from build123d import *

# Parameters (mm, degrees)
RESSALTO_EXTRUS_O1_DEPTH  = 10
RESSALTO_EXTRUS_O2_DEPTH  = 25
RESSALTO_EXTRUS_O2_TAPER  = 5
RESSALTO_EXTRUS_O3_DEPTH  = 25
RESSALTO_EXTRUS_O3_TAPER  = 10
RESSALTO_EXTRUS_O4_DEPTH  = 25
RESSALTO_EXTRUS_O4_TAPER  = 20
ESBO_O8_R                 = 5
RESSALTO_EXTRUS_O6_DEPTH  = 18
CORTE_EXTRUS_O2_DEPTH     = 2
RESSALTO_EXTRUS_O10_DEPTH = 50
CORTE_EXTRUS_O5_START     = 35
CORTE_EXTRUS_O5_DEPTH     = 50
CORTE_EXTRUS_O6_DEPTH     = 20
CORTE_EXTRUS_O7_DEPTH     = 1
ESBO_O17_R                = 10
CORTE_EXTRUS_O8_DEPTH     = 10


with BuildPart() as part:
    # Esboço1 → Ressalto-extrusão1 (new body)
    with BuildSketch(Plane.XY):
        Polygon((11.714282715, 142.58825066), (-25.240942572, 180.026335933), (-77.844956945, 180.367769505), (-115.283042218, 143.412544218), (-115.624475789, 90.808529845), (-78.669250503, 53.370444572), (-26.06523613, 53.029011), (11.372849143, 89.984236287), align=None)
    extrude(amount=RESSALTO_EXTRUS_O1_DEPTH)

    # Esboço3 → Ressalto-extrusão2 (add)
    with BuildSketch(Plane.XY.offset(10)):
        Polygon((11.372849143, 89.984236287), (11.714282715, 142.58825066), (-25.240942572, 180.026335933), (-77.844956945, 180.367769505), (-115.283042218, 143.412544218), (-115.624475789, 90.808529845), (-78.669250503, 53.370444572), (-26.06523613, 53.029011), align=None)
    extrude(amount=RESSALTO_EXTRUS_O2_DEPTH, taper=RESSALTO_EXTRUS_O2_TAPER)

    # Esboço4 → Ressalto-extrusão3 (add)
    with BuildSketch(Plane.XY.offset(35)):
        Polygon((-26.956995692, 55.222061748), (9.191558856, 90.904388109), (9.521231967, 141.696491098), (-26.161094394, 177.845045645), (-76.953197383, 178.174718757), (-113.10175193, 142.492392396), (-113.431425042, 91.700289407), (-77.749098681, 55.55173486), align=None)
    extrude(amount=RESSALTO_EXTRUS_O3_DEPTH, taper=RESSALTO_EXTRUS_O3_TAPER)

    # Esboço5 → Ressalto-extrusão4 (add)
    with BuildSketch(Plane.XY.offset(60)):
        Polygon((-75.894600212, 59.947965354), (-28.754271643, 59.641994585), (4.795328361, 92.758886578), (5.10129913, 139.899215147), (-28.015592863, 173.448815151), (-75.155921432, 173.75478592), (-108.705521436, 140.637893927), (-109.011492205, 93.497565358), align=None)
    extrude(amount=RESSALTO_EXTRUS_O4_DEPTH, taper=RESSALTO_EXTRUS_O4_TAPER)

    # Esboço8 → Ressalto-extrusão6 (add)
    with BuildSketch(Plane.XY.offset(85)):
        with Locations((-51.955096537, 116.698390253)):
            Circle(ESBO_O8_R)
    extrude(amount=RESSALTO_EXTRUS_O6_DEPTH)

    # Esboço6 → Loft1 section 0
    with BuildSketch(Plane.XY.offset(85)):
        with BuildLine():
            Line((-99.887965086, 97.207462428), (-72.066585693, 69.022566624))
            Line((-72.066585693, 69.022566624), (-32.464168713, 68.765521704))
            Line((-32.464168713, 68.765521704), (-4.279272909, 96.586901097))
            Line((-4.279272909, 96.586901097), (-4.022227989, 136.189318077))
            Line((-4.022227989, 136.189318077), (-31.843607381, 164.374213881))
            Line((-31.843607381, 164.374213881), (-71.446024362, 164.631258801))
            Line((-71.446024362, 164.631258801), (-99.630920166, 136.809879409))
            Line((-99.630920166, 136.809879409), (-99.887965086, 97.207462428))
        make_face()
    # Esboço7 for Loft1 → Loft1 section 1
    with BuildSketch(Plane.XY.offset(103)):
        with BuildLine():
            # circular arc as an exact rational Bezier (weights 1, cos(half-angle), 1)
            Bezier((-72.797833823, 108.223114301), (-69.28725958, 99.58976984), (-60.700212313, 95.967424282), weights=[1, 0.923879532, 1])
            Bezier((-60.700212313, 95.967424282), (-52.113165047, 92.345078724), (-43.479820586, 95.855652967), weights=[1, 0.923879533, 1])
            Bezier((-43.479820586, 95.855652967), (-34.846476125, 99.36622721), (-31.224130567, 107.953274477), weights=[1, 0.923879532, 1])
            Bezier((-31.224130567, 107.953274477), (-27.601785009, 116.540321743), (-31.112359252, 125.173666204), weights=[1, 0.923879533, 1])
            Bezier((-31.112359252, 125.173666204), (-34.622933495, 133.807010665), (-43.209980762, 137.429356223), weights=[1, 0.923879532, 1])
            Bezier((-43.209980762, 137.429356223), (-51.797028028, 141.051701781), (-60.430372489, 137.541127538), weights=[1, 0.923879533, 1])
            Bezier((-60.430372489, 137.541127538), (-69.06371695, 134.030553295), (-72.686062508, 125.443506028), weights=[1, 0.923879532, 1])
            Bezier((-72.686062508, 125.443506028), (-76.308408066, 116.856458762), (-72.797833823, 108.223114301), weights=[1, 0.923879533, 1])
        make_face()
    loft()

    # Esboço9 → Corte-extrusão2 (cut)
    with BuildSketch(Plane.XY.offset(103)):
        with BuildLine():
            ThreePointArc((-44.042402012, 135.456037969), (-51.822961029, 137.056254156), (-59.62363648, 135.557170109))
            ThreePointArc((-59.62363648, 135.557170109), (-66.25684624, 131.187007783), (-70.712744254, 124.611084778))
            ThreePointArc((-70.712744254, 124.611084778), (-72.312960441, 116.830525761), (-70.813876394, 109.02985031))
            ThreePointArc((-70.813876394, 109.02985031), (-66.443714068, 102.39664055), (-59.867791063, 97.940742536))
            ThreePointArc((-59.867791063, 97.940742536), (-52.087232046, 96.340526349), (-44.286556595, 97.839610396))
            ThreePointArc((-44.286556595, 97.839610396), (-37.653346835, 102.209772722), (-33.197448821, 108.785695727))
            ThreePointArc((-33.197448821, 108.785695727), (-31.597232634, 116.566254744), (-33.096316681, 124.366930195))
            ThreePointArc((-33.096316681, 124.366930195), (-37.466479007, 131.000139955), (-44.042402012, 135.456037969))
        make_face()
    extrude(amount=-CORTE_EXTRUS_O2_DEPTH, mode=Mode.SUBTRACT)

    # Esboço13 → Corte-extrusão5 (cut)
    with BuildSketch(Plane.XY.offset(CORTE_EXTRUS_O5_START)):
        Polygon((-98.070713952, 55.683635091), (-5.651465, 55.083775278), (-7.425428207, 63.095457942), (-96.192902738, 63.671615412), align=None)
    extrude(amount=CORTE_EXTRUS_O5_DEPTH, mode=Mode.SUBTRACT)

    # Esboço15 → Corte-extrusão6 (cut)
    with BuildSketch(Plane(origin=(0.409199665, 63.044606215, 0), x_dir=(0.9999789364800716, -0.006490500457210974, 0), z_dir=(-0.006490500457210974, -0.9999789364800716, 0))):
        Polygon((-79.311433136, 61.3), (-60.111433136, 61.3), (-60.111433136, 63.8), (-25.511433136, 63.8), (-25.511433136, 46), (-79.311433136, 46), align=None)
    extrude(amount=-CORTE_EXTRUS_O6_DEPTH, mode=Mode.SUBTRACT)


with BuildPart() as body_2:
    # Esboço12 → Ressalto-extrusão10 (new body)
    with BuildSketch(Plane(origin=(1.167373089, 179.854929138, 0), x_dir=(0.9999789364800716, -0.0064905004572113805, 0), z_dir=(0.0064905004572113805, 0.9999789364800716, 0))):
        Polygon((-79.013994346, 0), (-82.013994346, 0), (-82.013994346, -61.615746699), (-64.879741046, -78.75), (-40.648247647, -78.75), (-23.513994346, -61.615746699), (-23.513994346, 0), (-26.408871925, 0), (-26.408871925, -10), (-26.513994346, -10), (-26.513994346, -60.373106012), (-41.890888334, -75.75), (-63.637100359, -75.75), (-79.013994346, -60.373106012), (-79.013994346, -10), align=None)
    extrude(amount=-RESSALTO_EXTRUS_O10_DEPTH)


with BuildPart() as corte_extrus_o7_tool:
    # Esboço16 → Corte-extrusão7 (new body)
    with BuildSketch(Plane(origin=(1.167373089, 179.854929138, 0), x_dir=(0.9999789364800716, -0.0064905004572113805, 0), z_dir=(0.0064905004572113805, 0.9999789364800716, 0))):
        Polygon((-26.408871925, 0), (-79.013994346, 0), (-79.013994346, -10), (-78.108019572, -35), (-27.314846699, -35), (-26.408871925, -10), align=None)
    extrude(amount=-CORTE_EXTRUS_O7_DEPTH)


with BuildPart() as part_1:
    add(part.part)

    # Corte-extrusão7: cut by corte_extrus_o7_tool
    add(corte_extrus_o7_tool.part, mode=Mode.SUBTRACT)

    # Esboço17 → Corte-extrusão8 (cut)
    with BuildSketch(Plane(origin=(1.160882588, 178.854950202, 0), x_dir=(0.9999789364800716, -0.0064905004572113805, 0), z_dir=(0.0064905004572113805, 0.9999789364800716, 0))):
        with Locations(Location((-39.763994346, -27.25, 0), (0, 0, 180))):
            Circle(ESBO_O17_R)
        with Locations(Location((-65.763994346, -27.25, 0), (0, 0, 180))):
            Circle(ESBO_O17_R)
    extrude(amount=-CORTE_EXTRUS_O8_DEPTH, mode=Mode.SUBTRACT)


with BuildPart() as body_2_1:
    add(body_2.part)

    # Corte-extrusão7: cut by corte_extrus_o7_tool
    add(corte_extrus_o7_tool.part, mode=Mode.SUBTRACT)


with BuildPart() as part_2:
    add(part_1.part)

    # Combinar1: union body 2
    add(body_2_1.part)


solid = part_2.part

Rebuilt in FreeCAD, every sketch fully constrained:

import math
import FreeCAD as App
import Part
import Sketcher
Q = App.Units.Quantity

doc = App.newDocument("Part")
body = doc.addObject("PartDesign::Body", "Body")

# Sketch on XY plane
sketch1 = body.newObject("Sketcher::SketchObject", "Sketch")
sketch1.AttachmentSupport = (doc.getObject("XY_Plane"), [""])
sketch1.MapMode = "FlatFace"
sketch1.addGeometry(Part.LineSegment(App.Vector(12, 143, 0), App.Vector(-25, 180, 0)), False)
sketch1.addGeometry(Part.LineSegment(App.Vector(-25, 180, 0), App.Vector(-78, 180, 0)), False)
sketch1.addGeometry(Part.LineSegment(App.Vector(-78, 180, 0), App.Vector(-115, 143, 0)), False)
sketch1.addGeometry(Part.LineSegment(App.Vector(-115, 143, 0), App.Vector(-116, 91, 0)), False)
sketch1.addGeometry(Part.LineSegment(App.Vector(-116, 91, 0), App.Vector(-79, 53, 0)), False)
sketch1.addGeometry(Part.LineSegment(App.Vector(-79, 53, 0), App.Vector(-26, 53, 0)), False)
sketch1.addGeometry(Part.LineSegment(App.Vector(-26, 53, 0), App.Vector(11, 90, 0)), False)
sketch1.addGeometry(Part.LineSegment(App.Vector(11, 90, 0), App.Vector(12, 143, 0)), False)
sketch1.addConstraint(Sketcher.Constraint("Coincident", 0, 2, 1, 1))
sketch1.addConstraint(Sketcher.Constraint("Coincident", 1, 2, 2, 1))
sketch1.addConstraint(Sketcher.Constraint("Coincident", 2, 2, 3, 1))
sketch1.addConstraint(Sketcher.Constraint("Coincident", 3, 2, 4, 1))
sketch1.addConstraint(Sketcher.Constraint("Coincident", 4, 2, 5, 1))
sketch1.addConstraint(Sketcher.Constraint("Coincident", 5, 2, 6, 1))
sketch1.addConstraint(Sketcher.Constraint("Coincident", 6, 2, 7, 1))
sketch1.addConstraint(Sketcher.Constraint("Coincident", 7, 2, 0, 1))
sketch1.addConstraint(Sketcher.Constraint("Perpendicular", 0, 2))
sketch1.addConstraint(Sketcher.Constraint("Perpendicular", 1, 3))
sketch1.addConstraint(Sketcher.Constraint("Perpendicular", 2, 4))
sketch1.addConstraint(Sketcher.Constraint("Perpendicular", 3, 5))
sketch1.addConstraint(Sketcher.Constraint("Perpendicular", 4, 6))
sketch1.addConstraint(Sketcher.Constraint("Perpendicular", 5, 7))
sketch1.addConstraint(Sketcher.Constraint("Equal", 0, 1))
sketch1.addConstraint(Sketcher.Constraint("Equal", 1, 2))
sketch1.addConstraint(Sketcher.Constraint("Equal", 2, 3))
sketch1.addConstraint(Sketcher.Constraint("Equal", 3, 4))
sketch1.addConstraint(Sketcher.Constraint("Equal", 4, 5))
sketch1.addConstraint(Sketcher.Constraint("DistanceX", 2, 2, 0, 2, Q("90.0421 mm")))
sketch1.addConstraint(Sketcher.Constraint("DistanceY", -1, 1, 1, 2, Q("180.36777 mm")))
sketch1.addConstraint(Sketcher.Constraint("DistanceY", -1, 1, 3, 2, Q("90.80853 mm")))
sketch1.addConstraint(Sketcher.Constraint("DistanceX", 4, 2, -1, 1, Q("78.669251 mm")))
sketch1.addConstraint(Sketcher.Constraint("DistanceY", -1, 1, 5, 2, Q("53.029011 mm")))
pad1 = body.newObject("PartDesign::Pad", "Pad")
pad1.Profile = sketch1
pad1.Length = 10

# Sketch on XY plane
sketch2 = body.newObject("Sketcher::SketchObject", "Sketch001")
sketch2.AttachmentSupport = (doc.getObject("XY_Plane"), [""])
sketch2.MapMode = "FlatFace"
sketch2.AttachmentOffset = App.Placement(App.Vector(0, 0, 10), App.Rotation())
sketch2.addGeometry(Part.LineSegment(App.Vector(11, 90, 0), App.Vector(12, 143, 0)), False)
sketch2.addGeometry(Part.LineSegment(App.Vector(12, 143, 0), App.Vector(-25, 180, 0)), False)
sketch2.addGeometry(Part.LineSegment(App.Vector(-25, 180, 0), App.Vector(-78, 180, 0)), False)
sketch2.addGeometry(Part.LineSegment(App.Vector(-78, 180, 0), App.Vector(-115, 143, 0)), False)
sketch2.addGeometry(Part.LineSegment(App.Vector(-115, 143, 0), App.Vector(-116, 91, 0)), False)
sketch2.addGeometry(Part.LineSegment(App.Vector(-116, 91, 0), App.Vector(-79, 53, 0)), False)
sketch2.addGeometry(Part.LineSegment(App.Vector(-79, 53, 0), App.Vector(-26, 53, 0)), False)
sketch2.addGeometry(Part.LineSegment(App.Vector(-26, 53, 0), App.Vector(11, 90, 0)), False)
sketch2.addConstraint(Sketcher.Constraint("Coincident", 0, 2, 1, 1))
sketch2.addConstraint(Sketcher.Constraint("Coincident", 1, 2, 2, 1))
sketch2.addConstraint(Sketcher.Constraint("Coincident", 2, 2, 3, 1))
sketch2.addConstraint(Sketcher.Constraint("Coincident", 3, 2, 4, 1))
sketch2.addConstraint(Sketcher.Constraint("Coincident", 4, 2, 5, 1))
sketch2.addConstraint(Sketcher.Constraint("Coincident", 5, 2, 6, 1))
sketch2.addConstraint(Sketcher.Constraint("Coincident", 6, 2, 7, 1))
sketch2.addConstraint(Sketcher.Constraint("Coincident", 7, 2, 0, 1))
sketch2.addConstraint(Sketcher.Constraint("Perpendicular", 0, 2))
sketch2.addConstraint(Sketcher.Constraint("Perpendicular", 1, 3))
sketch2.addConstraint(Sketcher.Constraint("Perpendicular", 2, 4))
sketch2.addConstraint(Sketcher.Constraint("Perpendicular", 3, 5))
sketch2.addConstraint(Sketcher.Constraint("Perpendicular", 4, 6))
sketch2.addConstraint(Sketcher.Constraint("Perpendicular", 5, 7))
sketch2.addConstraint(Sketcher.Constraint("Equal", 0, 1))
sketch2.addConstraint(Sketcher.Constraint("Equal", 1, 2))
sketch2.addConstraint(Sketcher.Constraint("Equal", 2, 3))
sketch2.addConstraint(Sketcher.Constraint("Equal", 3, 4))
sketch2.addConstraint(Sketcher.Constraint("Equal", 4, 5))
sketch2.addConstraint(Sketcher.Constraint("DistanceX", 3, 2, 1, 2, Q("90.0421 mm")))
sketch2.addConstraint(Sketcher.Constraint("DistanceY", -1, 1, 0, 2, Q("142.588251 mm")))
sketch2.addConstraint(Sketcher.Constraint("DistanceY", -1, 1, 2, 2, Q("180.36777 mm")))
sketch2.addConstraint(Sketcher.Constraint("DistanceY", -1, 1, 4, 2, Q("90.80853 mm")))
sketch2.addConstraint(Sketcher.Constraint("DistanceX", 5, 2, -1, 1, Q("78.669251 mm")))
pad2 = body.newObject("PartDesign::Pad", "Pad001")
pad2.Profile = sketch2
pad2.Length = 25
pad2.TaperAngle = -5

# Sketch on XY plane
sketch3 = body.newObject("Sketcher::SketchObject", "Sketch002")
sketch3.AttachmentSupport = (doc.getObject("XY_Plane"), [""])
sketch3.MapMode = "FlatFace"
sketch3.AttachmentOffset = App.Placement(App.Vector(0, 0, 35), App.Rotation())
sketch3.addGeometry(Part.LineSegment(App.Vector(-27, 55, 0), App.Vector(9, 91, 0)), False)
sketch3.addGeometry(Part.LineSegment(App.Vector(9, 91, 0), App.Vector(10, 142, 0)), False)
sketch3.addGeometry(Part.LineSegment(App.Vector(10, 142, 0), App.Vector(-26, 178, 0)), False)
sketch3.addGeometry(Part.LineSegment(App.Vector(-26, 178, 0), App.Vector(-77, 178, 0)), False)
sketch3.addGeometry(Part.LineSegment(App.Vector(-77, 178, 0), App.Vector(-113, 142, 0)), False)
sketch3.addGeometry(Part.LineSegment(App.Vector(-113, 142, 0), App.Vector(-113, 92, 0)), False)
sketch3.addGeometry(Part.LineSegment(App.Vector(-113, 92, 0), App.Vector(-78, 56, 0)), False)
sketch3.addGeometry(Part.LineSegment(App.Vector(-78, 56, 0), App.Vector(-27, 55, 0)), False)
sketch3.addConstraint(Sketcher.Constraint("Coincident", 0, 2, 1, 1))
sketch3.addConstraint(Sketcher.Constraint("Coincident", 1, 2, 2, 1))
sketch3.addConstraint(Sketcher.Constraint("Coincident", 2, 2, 3, 1))
sketch3.addConstraint(Sketcher.Constraint("Coincident", 3, 2, 4, 1))
sketch3.addConstraint(Sketcher.Constraint("Coincident", 4, 2, 5, 1))
sketch3.addConstraint(Sketcher.Constraint("Coincident", 5, 2, 6, 1))
sketch3.addConstraint(Sketcher.Constraint("Coincident", 6, 2, 7, 1))
sketch3.addConstraint(Sketcher.Constraint("Coincident", 7, 2, 0, 1))
sketch3.addConstraint(Sketcher.Constraint("Perpendicular", 0, 2))
sketch3.addConstraint(Sketcher.Constraint("Perpendicular", 1, 3))
sketch3.addConstraint(Sketcher.Constraint("Perpendicular", 2, 4))
sketch3.addConstraint(Sketcher.Constraint("Perpendicular", 3, 5))
sketch3.addConstraint(Sketcher.Constraint("Perpendicular", 4, 6))
sketch3.addConstraint(Sketcher.Constraint("Perpendicular", 5, 7))
sketch3.addConstraint(Sketcher.Constraint("Equal", 0, 1))
sketch3.addConstraint(Sketcher.Constraint("Equal", 1, 2))
sketch3.addConstraint(Sketcher.Constraint("Equal", 2, 3))
sketch3.addConstraint(Sketcher.Constraint("Equal", 3, 4))
sketch3.addConstraint(Sketcher.Constraint("Equal", 4, 5))
sketch3.addConstraint(Sketcher.Constraint("DistanceX", 6, 2, -1, 1, Q("77.749099 mm")))
sketch3.addConstraint(Sketcher.Constraint("DistanceY", 1, 2, 4, 2, Q("0.795901 mm")))
sketch3.addConstraint(Sketcher.Constraint("DistanceY", 5, 2, 1, 2, Q("49.996202 mm")))
sketch3.addConstraint(Sketcher.Constraint("DistanceX", -1, 1, 0, 2, Q("9.191559 mm")))
sketch3.addConstraint(Sketcher.Constraint("DistanceY", -1, 1, 0, 2, Q("90.904388 mm")))
pad3 = body.newObject("PartDesign::Pad", "Pad002")
pad3.Profile = sketch3
pad3.Length = 25
pad3.TaperAngle = -10

# Sketch on XY plane
sketch4 = body.newObject("Sketcher::SketchObject", "Sketch003")
sketch4.AttachmentSupport = (doc.getObject("XY_Plane"), [""])
sketch4.MapMode = "FlatFace"
sketch4.AttachmentOffset = App.Placement(App.Vector(0, 0, 60), App.Rotation())
sketch4.addGeometry(Part.LineSegment(App.Vector(-76, 60, 0), App.Vector(-29, 60, 0)), False)
sketch4.addGeometry(Part.LineSegment(App.Vector(-29, 60, 0), App.Vector(5, 93, 0)), False)
sketch4.addGeometry(Part.LineSegment(App.Vector(5, 93, 0), App.Vector(5, 140, 0)), False)
sketch4.addGeometry(Part.LineSegment(App.Vector(5, 140, 0), App.Vector(-28, 173, 0)), False)
sketch4.addGeometry(Part.LineSegment(App.Vector(-28, 173, 0), App.Vector(-75, 174, 0)), False)
sketch4.addGeometry(Part.LineSegment(App.Vector(-75, 174, 0), App.Vector(-109, 141, 0)), False)
sketch4.addGeometry(Part.LineSegment(App.Vector(-109, 141, 0), App.Vector(-109, 93, 0)), False)
sketch4.addGeometry(Part.LineSegment(App.Vector(-109, 93, 0), App.Vector(-76, 60, 0)), False)
sketch4.addConstraint(Sketcher.Constraint("Coincident", 0, 2, 1, 1))
sketch4.addConstraint(Sketcher.Constraint("Coincident", 1, 2, 2, 1))
sketch4.addConstraint(Sketcher.Constraint("Coincident", 2, 2, 3, 1))
sketch4.addConstraint(Sketcher.Constraint("Coincident", 3, 2, 4, 1))
sketch4.addConstraint(Sketcher.Constraint("Coincident", 4, 2, 5, 1))
sketch4.addConstraint(Sketcher.Constraint("Coincident", 5, 2, 6, 1))
sketch4.addConstraint(Sketcher.Constraint("Coincident", 6, 2, 7, 1))
sketch4.addConstraint(Sketcher.Constraint("Coincident", 7, 2, 0, 1))
sketch4.addConstraint(Sketcher.Constraint("Perpendicular", 0, 2))
sketch4.addConstraint(Sketcher.Constraint("Perpendicular", 1, 3))
sketch4.addConstraint(Sketcher.Constraint("Perpendicular", 2, 4))
sketch4.addConstraint(Sketcher.Constraint("Perpendicular", 3, 5))
sketch4.addConstraint(Sketcher.Constraint("Perpendicular", 4, 6))
sketch4.addConstraint(Sketcher.Constraint("Perpendicular", 5, 7))
sketch4.addConstraint(Sketcher.Constraint("Equal", 0, 1))
sketch4.addConstraint(Sketcher.Constraint("Equal", 1, 2))
sketch4.addConstraint(Sketcher.Constraint("Equal", 2, 3))
sketch4.addConstraint(Sketcher.Constraint("Equal", 3, 4))
sketch4.addConstraint(Sketcher.Constraint("Equal", 4, 5))
sketch4.addConstraint(Sketcher.Constraint("DistanceX", -1, 1, 2, 2, Q("5.101299 mm")))
sketch4.addConstraint(Sketcher.Constraint("DistanceX", 7, 2, -1, 1, Q("75.8946 mm")))
sketch4.addConstraint(Sketcher.Constraint("DistanceX", 0, 2, 1, 2, Q("33.5496 mm")))
sketch4.addConstraint(Sketcher.Constraint("Distance", 0, Q("47.141322 mm")))
sketch4.addConstraint(Sketcher.Constraint("DistanceY", -1, 1, 0, 2, Q("59.641995 mm")))
pad4 = body.newObject("PartDesign::Pad", "Pad003")
pad4.Profile = sketch4
pad4.Length = 25
pad4.TaperAngle = -20

# Sketch on XY plane
sketch5 = body.newObject("Sketcher::SketchObject", "Sketch004")
sketch5.AttachmentSupport = (doc.getObject("XY_Plane"), [""])
sketch5.MapMode = "FlatFace"
sketch5.AttachmentOffset = App.Placement(App.Vector(0, 0, 85), App.Rotation())
sketch5.addGeometry(Part.Circle(App.Vector(-52, 117, 0), App.Vector(0, 0, 1), 5), False)
sketch5.addConstraint(Sketcher.Constraint("Diameter", 0, Q("10 mm")))
sketch5.addConstraint(Sketcher.Constraint("DistanceY", -1, 1, 0, 3, Q("116.69839 mm")))
sketch5.addConstraint(Sketcher.Constraint("DistanceX", 0, 3, -1, 1, Q("51.955097 mm")))
pad5 = body.newObject("PartDesign::Pad", "Pad004")
pad5.Profile = sketch5
pad5.Length = 18

# Sketch on XY plane
sketch6 = body.newObject("Sketcher::SketchObject", "Sketch005")
sketch6.AttachmentSupport = (doc.getObject("XY_Plane"), [""])
sketch6.MapMode = "FlatFace"
sketch6.AttachmentOffset = App.Placement(App.Vector(0, 0, 85), App.Rotation())
sketch6.addGeometry(Part.LineSegment(App.Vector(-100, 97, 0), App.Vector(-72, 69, 0)), False)
sketch6.addGeometry(Part.LineSegment(App.Vector(-72, 69, 0), App.Vector(-32, 69, 0)), False)
sketch6.addGeometry(Part.LineSegment(App.Vector(-32, 69, 0), App.Vector(-4, 97, 0)), False)
sketch6.addGeometry(Part.LineSegment(App.Vector(-4, 97, 0), App.Vector(-4, 136, 0)), False)
sketch6.addGeometry(Part.LineSegment(App.Vector(-4, 136, 0), App.Vector(-32, 164, 0)), False)
sketch6.addGeometry(Part.LineSegment(App.Vector(-32, 164, 0), App.Vector(-71, 165, 0)), False)
sketch6.addGeometry(Part.LineSegment(App.Vector(-71, 165, 0), App.Vector(-100, 137, 0)), False)
sketch6.addGeometry(Part.LineSegment(App.Vector(-100, 137, 0), App.Vector(-100, 97, 0)), False)
sketch6.addConstraint(Sketcher.Constraint("Coincident", 0, 2, 1, 1))
sketch6.addConstraint(Sketcher.Constraint("Coincident", 1, 2, 2, 1))
sketch6.addConstraint(Sketcher.Constraint("Coincident", 2, 2, 3, 1))
sketch6.addConstraint(Sketcher.Constraint("Coincident", 3, 2, 4, 1))
sketch6.addConstraint(Sketcher.Constraint("Coincident", 4, 2, 5, 1))
sketch6.addConstraint(Sketcher.Constraint("Coincident", 5, 2, 6, 1))
sketch6.addConstraint(Sketcher.Constraint("Coincident", 6, 2, 7, 1))
sketch6.addConstraint(Sketcher.Constraint("Coincident", 7, 2, 0, 1))
sketch6.addConstraint(Sketcher.Constraint("Perpendicular", 0, 2))
sketch6.addConstraint(Sketcher.Constraint("Perpendicular", 1, 3))
sketch6.addConstraint(Sketcher.Constraint("Perpendicular", 2, 4))
sketch6.addConstraint(Sketcher.Constraint("Perpendicular", 3, 5))
sketch6.addConstraint(Sketcher.Constraint("Perpendicular", 4, 6))
sketch6.addConstraint(Sketcher.Constraint("Perpendicular", 5, 7))
sketch6.addConstraint(Sketcher.Constraint("Equal", 0, 1))
sketch6.addConstraint(Sketcher.Constraint("Equal", 1, 2))
sketch6.addConstraint(Sketcher.Constraint("Equal", 2, 3))
sketch6.addConstraint(Sketcher.Constraint("Equal", 3, 4))
sketch6.addConstraint(Sketcher.Constraint("Equal", 4, 5))
sketch6.addConstraint(Sketcher.Constraint("DistanceY", -1, 1, 2, 2, Q("96.586901 mm")))
sketch6.addConstraint(Sketcher.Constraint("Distance", 0, Q("39.603251 mm")))
sketch6.addConstraint(Sketcher.Constraint("DistanceX", 1, 2, -1, 1, Q("32.464169 mm")))
sketch6.addConstraint(Sketcher.Constraint("DistanceY", -1, 1, 1, 2, Q("68.765522 mm")))
sketch6.addConstraint(Sketcher.Constraint("DistanceY", -1, 1, 5, 2, Q("164.631259 mm")))

# Sketch on XY plane
sketch7 = body.newObject("Sketcher::SketchObject", "Sketch006")
sketch7.AttachmentSupport = (doc.getObject("XY_Plane"), [""])
sketch7.MapMode = "FlatFace"
sketch7.AttachmentOffset = App.Placement(App.Vector(0, 0, 103), App.Rotation())
sketch7.addGeometry(Part.BSplineCurve([App.Vector(-60.700212, 95.967424, 0), App.Vector(-57.526853, 94.62878, 0), App.Vector(-53.960957, 93.841455, 0), App.Vector(-50.246104, 93.817343, 0), App.Vector(-46.670289, 94.558314, 0), App.Vector(-40.289352, 97.152992, 0), App.Vector(-37.21116, 99.117738, 0), App.Vector(-34.567313, 101.727487, 0), App.Vector(-32.562775, 104.779916, 0), App.Vector(-31.224131, 107.953274, 0)], [6, 4, 6], [0, 1, 1.999999999], False, 5, [1, 1, 0.99768227, 0.99768227, 1, 1, 0.99768227, 0.99768227, 1, 1], False), False)
sketch7.addGeometry(Part.BSplineCurve([App.Vector(-31.224131, 107.953274, 0), App.Vector(-29.885486, 111.126633, 0), App.Vector(-29.098161, 114.692529, 0), App.Vector(-29.074049, 118.407383, 0), App.Vector(-29.81502, 121.983198, 0), App.Vector(-32.409698, 128.364134, 0), App.Vector(-34.374445, 131.442326, 0), App.Vector(-36.984193, 134.086174, 0), App.Vector(-40.036622, 136.090712, 0), App.Vector(-43.209981, 137.429356, 0)], [6, 4, 6], [0, 1, 1.999999999], False, 5, [1, 1, 0.99768227, 0.99768227, 1, 1, 0.99768227, 0.99768227, 1, 1], False), False)
sketch7.addGeometry(Part.BSplineCurve([App.Vector(-43.209981, 137.429356, 0), App.Vector(-46.38334, 138.768001, 0), App.Vector(-49.949236, 139.555326, 0), App.Vector(-53.664089, 139.579437, 0), App.Vector(-57.239904, 138.838467, 0), App.Vector(-63.620841, 136.243788, 0), App.Vector(-66.699033, 134.279042, 0), App.Vector(-69.34288, 131.669294, 0), App.Vector(-71.347418, 128.616865, 0), App.Vector(-72.686063, 125.443506, 0)], [6, 4, 6], [0, 1, 1.999999999], False, 5, [1, 1, 0.99768227, 0.99768227, 1, 1, 0.99768227, 0.99768227, 1, 1], False), False)
sketch7.addGeometry(Part.BSplineCurve([App.Vector(-72.686063, 125.443506, 0), App.Vector(-74.024707, 122.270147, 0), App.Vector(-74.812032, 118.704251, 0), App.Vector(-74.836144, 114.989398, 0), App.Vector(-74.095173, 111.413582, 0), App.Vector(-71.500495, 105.032646, 0), App.Vector(-69.535748, 101.954454, 0), App.Vector(-66.926, 99.310607, 0), App.Vector(-63.873571, 97.306069, 0), App.Vector(-60.700212, 95.967424, 0)], [6, 4, 6], [0, 1, 1.999999999], False, 5, [1, 1, 0.99768227, 0.99768227, 1, 1, 0.99768227, 0.99768227, 1, 1], False), False)
sketch7.addConstraint(Sketcher.Constraint("Block", 0))
sketch7.addConstraint(Sketcher.Constraint("Block", 1))
sketch7.addConstraint(Sketcher.Constraint("Block", 2))
sketch7.addConstraint(Sketcher.Constraint("Block", 3))

additiveloft = body.newObject("PartDesign::AdditiveLoft", "AdditiveLoft")
additiveloft.Profile = sketch6
additiveloft.Sections = [sketch7]

# Sketch on XY plane
sketch8 = body.newObject("Sketcher::SketchObject", "Sketch007")
sketch8.AttachmentSupport = (doc.getObject("XY_Plane"), [""])
sketch8.MapMode = "FlatFace"
sketch8.AttachmentOffset = App.Placement(App.Vector(0, 0, 103), App.Rotation())
sketch8.addGeometry(Part.ArcOfCircle(Part.Circle(App.Vector(-52, 117, 0), App.Vector(0, 0, 1), 20), math.radians(67), math.radians(112)), False)
sketch8.addGeometry(Part.ArcOfCircle(Part.Circle(App.Vector(-52, 117, 0), App.Vector(0, 0, 1), 20), math.radians(112), math.radians(157)), False)
sketch8.addGeometry(Part.ArcOfCircle(Part.Circle(App.Vector(-52, 117, 0), App.Vector(0, 0, 1), 20), math.radians(157), math.radians(202)), False)
sketch8.addGeometry(Part.ArcOfCircle(Part.Circle(App.Vector(-52, 117, 0), App.Vector(0, 0, 1), 20), math.radians(-158), math.radians(-113)), False)
sketch8.addGeometry(Part.ArcOfCircle(Part.Circle(App.Vector(-52, 117, 0), App.Vector(0, 0, 1), 20), math.radians(-113), math.radians(-68)), False)
sketch8.addGeometry(Part.ArcOfCircle(Part.Circle(App.Vector(-52, 117, 0), App.Vector(0, 0, 1), 20), math.radians(-68), math.radians(-23)), False)
sketch8.addGeometry(Part.ArcOfCircle(Part.Circle(App.Vector(-52, 117, 0), App.Vector(0, 0, 1), 20), math.radians(-23), math.radians(22)), False)
sketch8.addGeometry(Part.ArcOfCircle(Part.Circle(App.Vector(-52, 117, 0), App.Vector(0, 0, 1), 20), math.radians(22), math.radians(67)), False)
sketch8.addConstraint(Sketcher.Constraint("Tangent", 0, 2, 1, 1))
sketch8.addConstraint(Sketcher.Constraint("Tangent", 1, 2, 2, 1))
sketch8.addConstraint(Sketcher.Constraint("Tangent", 2, 2, 3, 1))
sketch8.addConstraint(Sketcher.Constraint("Tangent", 3, 2, 4, 1))
sketch8.addConstraint(Sketcher.Constraint("Tangent", 4, 2, 5, 1))
sketch8.addConstraint(Sketcher.Constraint("Tangent", 5, 2, 6, 1))
sketch8.addConstraint(Sketcher.Constraint("Tangent", 6, 2, 7, 1))
sketch8.addConstraint(Sketcher.Constraint("Tangent", 7, 2, 0, 1))
sketch8.addConstraint(Sketcher.Constraint("Coincident", 2, 3, 0, 3))
sketch8.addConstraint(Sketcher.Constraint("Coincident", 4, 3, 0, 3))
sketch8.addConstraint(Sketcher.Constraint("Equal", 4, 5))
sketch8.addConstraint(Sketcher.Constraint("Radius", 0, Q("20.358293 mm")))
sketch8.addConstraint(Sketcher.Constraint("DistanceY", -1, 1, 0, 3, Q("116.69839 mm")))
sketch8.addConstraint(Sketcher.Constraint("DistanceY", -1, 1, 0, 2, Q("135.55717 mm")))
sketch8.addConstraint(Sketcher.Constraint("DistanceY", -1, 1, 2, 2, Q("109.02985 mm")))
sketch8.addConstraint(Sketcher.Constraint("DistanceX", 3, 2, -1, 1, Q("59.867791 mm")))
sketch8.addConstraint(Sketcher.Constraint("DistanceY", -1, 1, 4, 2, Q("97.83961 mm")))
sketch8.addConstraint(Sketcher.Constraint("DistanceX", 5, 2, -1, 1, Q("33.197449 mm")))
sketch8.addConstraint(Sketcher.Constraint("DistanceY", -1, 1, 6, 2, Q("124.36693 mm")))
sketch8.addConstraint(Sketcher.Constraint("DistanceX", 0, 3, -1, 1, Q("51.955097 mm")))
sketch8.addConstraint(Sketcher.Constraint("DistanceX", 1, 2, -1, 1, Q("70.712744 mm")))
sketch8.addConstraint(Sketcher.Constraint("DistanceX", 7, 2, -1, 1, Q("44.042402 mm")))
pocket1 = body.newObject("PartDesign::Pocket", "Pocket")
pocket1.Profile = sketch8
pocket1.Length = 2

# Sketch on XY plane
sketch9 = body.newObject("Sketcher::SketchObject", "Sketch008")
sketch9.AttachmentSupport = (doc.getObject("XY_Plane"), [""])
sketch9.MapMode = "FlatFace"
sketch9.AttachmentOffset = App.Placement(App.Vector(0, 0, 35), App.Rotation())
sketch9.addGeometry(Part.LineSegment(App.Vector(-98, 56, 0), App.Vector(-6, 55, 0)), False)
sketch9.addGeometry(Part.LineSegment(App.Vector(-6, 55, 0), App.Vector(-7, 63, 0)), False)
sketch9.addGeometry(Part.LineSegment(App.Vector(-7, 63, 0), App.Vector(-96, 64, 0)), False)
sketch9.addGeometry(Part.LineSegment(App.Vector(-96, 64, 0), App.Vector(-98, 56, 0)), False)
sketch9.addConstraint(Sketcher.Constraint("Coincident", 0, 2, 1, 1))
sketch9.addConstraint(Sketcher.Constraint("Coincident", 1, 2, 2, 1))
sketch9.addConstraint(Sketcher.Constraint("Coincident", 2, 2, 3, 1))
sketch9.addConstraint(Sketcher.Constraint("Coincident", 3, 2, 0, 1))
sketch9.addConstraint(Sketcher.Constraint("Parallel", 0, 2))
sketch9.addConstraint(Sketcher.Constraint("Equal", 1, 3))
sketch9.addConstraint(Sketcher.Constraint("Distance", 1, Q("8.20573 mm")))
sketch9.addConstraint(Sketcher.Constraint("DistanceX", 1, 2, -1, 1, Q("7.425428 mm")))
sketch9.addConstraint(Sketcher.Constraint("DistanceY", 0, 2, 2, 2, Q("8.58784 mm")))
sketch9.addConstraint(Sketcher.Constraint("DistanceX", 3, 2, 2, 2, Q("1.877811 mm")))
sketch9.addConstraint(Sketcher.Constraint("DistanceX", 3, 2, 0, 2, Q("92.419249 mm")))
sketch9.addConstraint(Sketcher.Constraint("DistanceY", -1, 1, 0, 2, Q("55.083775 mm")))
pocket2 = body.newObject("PartDesign::Pocket", "Pocket001")
pocket2.Profile = sketch9
pocket2.Length = 50
pocket2.Reversed = True

# Sketch on an angled plane
sketch10 = body.newObject("Sketcher::SketchObject", "Sketch009")
sketch10.Placement = App.Placement(App.Vector(0.4092, 63.044606, 0), App.Rotation(App.Vector(0.999978936, -0.0064905, 0), App.Vector(0, 0, 0.999999999), App.Vector(-0.0064905, -0.999978936, 0), "ZXY"))
sketch10.addGeometry(Part.LineSegment(App.Vector(-60.1, 61.3, 0), App.Vector(-79.3, 61.3, 0)), False)
sketch10.addGeometry(Part.LineSegment(App.Vector(-79.3, 61.3, 0), App.Vector(-79.3, 46, 0)), False)
sketch10.addGeometry(Part.LineSegment(App.Vector(-79.3, 46, 0), App.Vector(-25.5, 46, 0)), False)
sketch10.addGeometry(Part.LineSegment(App.Vector(-25.5, 46, 0), App.Vector(-25.5, 63.8, 0)), False)
sketch10.addGeometry(Part.LineSegment(App.Vector(-25.5, 63.8, 0), App.Vector(-60.1, 63.8, 0)), False)
sketch10.addGeometry(Part.LineSegment(App.Vector(-60.1, 63.8, 0), App.Vector(-60.1, 61.3, 0)), False)
sketch10.addConstraint(Sketcher.Constraint("Coincident", 0, 2, 1, 1))
sketch10.addConstraint(Sketcher.Constraint("Coincident", 1, 2, 2, 1))
sketch10.addConstraint(Sketcher.Constraint("Coincident", 2, 2, 3, 1))
sketch10.addConstraint(Sketcher.Constraint("Coincident", 3, 2, 4, 1))
sketch10.addConstraint(Sketcher.Constraint("Coincident", 4, 2, 5, 1))
sketch10.addConstraint(Sketcher.Constraint("Coincident", 5, 2, 0, 1))
sketch10.addConstraint(Sketcher.Constraint("Horizontal", 0))
sketch10.addConstraint(Sketcher.Constraint("Vertical", 1))
sketch10.addConstraint(Sketcher.Constraint("Horizontal", 2))
sketch10.addConstraint(Sketcher.Constraint("Vertical", 3))
sketch10.addConstraint(Sketcher.Constraint("Horizontal", 4))
sketch10.addConstraint(Sketcher.Constraint("Vertical", 5))
sketch10.addConstraint(Sketcher.Constraint("DistanceX", 0, 2, 0, 1, Q("19.2 mm")))
sketch10.addConstraint(Sketcher.Constraint("DistanceX", 2, 1, 2, 2, Q("53.8 mm")))
sketch10.addConstraint(Sketcher.Constraint("DistanceY", 1, 2, 1, 1, Q("15.3 mm")))
sketch10.addConstraint(Sketcher.Constraint("DistanceY", 3, 1, 3, 2, Q("17.8 mm")))
sketch10.addConstraint(Sketcher.Constraint("DistanceY", -1, 1, 1, 2, Q("46 mm")))
sketch10.addConstraint(Sketcher.Constraint("DistanceX", 0, 2, -1, 1, Q("79.311433 mm")))
pocket3 = body.newObject("PartDesign::Pocket", "Pocket002")
pocket3.Profile = sketch10
pocket3.Length = 20
body2 = doc.addObject("PartDesign::Body", "Body001")

# Sketch on an angled plane
sketch11 = body2.newObject("Sketcher::SketchObject", "Sketch010")
sketch11.Placement = App.Placement(App.Vector(1.167373, 179.854929, 0), App.Rotation(App.Vector(0.999978936, -0.0064905, 0), App.Vector(0, 0, -0.999999999), App.Vector(0.0064905, 0.999978936, 0), "ZXY"))
sketch11.addGeometry(Part.LineSegment(App.Vector(-79.01, 0, 0), App.Vector(-82.01, 0, 0)), False)
sketch11.addGeometry(Part.LineSegment(App.Vector(-82.01, 0, 0), App.Vector(-82.01, -61.62, 0)), False)
sketch11.addGeometry(Part.LineSegment(App.Vector(-82.01, -61.62, 0), App.Vector(-64.88, -78.75, 0)), False)
sketch11.addGeometry(Part.LineSegment(App.Vector(-64.88, -78.75, 0), App.Vector(-40.65, -78.75, 0)), False)
sketch11.addGeometry(Part.LineSegment(App.Vector(-40.65, -78.75, 0), App.Vector(-23.51, -61.62, 0)), False)
sketch11.addGeometry(Part.LineSegment(App.Vector(-23.51, -61.62, 0), App.Vector(-23.51, 0, 0)), False)
sketch11.addGeometry(Part.LineSegment(App.Vector(-23.51, 0, 0), App.Vector(-26.41, 0, 0)), False)
sketch11.addGeometry(Part.LineSegment(App.Vector(-26.41, 0, 0), App.Vector(-26.41, -10, 0)), False)
sketch11.addGeometry(Part.LineSegment(App.Vector(-26.41, -10, 0), App.Vector(-26.51, -10, 0)), False)
sketch11.addGeometry(Part.LineSegment(App.Vector(-26.51, -10, 0), App.Vector(-26.51, -60.37, 0)), False)
sketch11.addGeometry(Part.LineSegment(App.Vector(-26.51, -60.37, 0), App.Vector(-41.89, -75.75, 0)), False)
sketch11.addGeometry(Part.LineSegment(App.Vector(-41.89, -75.75, 0), App.Vector(-63.64, -75.75, 0)), False)
sketch11.addGeometry(Part.LineSegment(App.Vector(-63.64, -75.75, 0), App.Vector(-79.01, -60.37, 0)), False)
sketch11.addGeometry(Part.LineSegment(App.Vector(-79.01, -60.37, 0), App.Vector(-79.01, 0, 0)), False)
sketch11.addConstraint(Sketcher.Constraint("Coincident", 0, 2, 1, 1))
sketch11.addConstraint(Sketcher.Constraint("Coincident", 1, 2, 2, 1))
sketch11.addConstraint(Sketcher.Constraint("Coincident", 2, 2, 3, 1))
sketch11.addConstraint(Sketcher.Constraint("Coincident", 3, 2, 4, 1))
sketch11.addConstraint(Sketcher.Constraint("Coincident", 4, 2, 5, 1))
sketch11.addConstraint(Sketcher.Constraint("Coincident", 5, 2, 6, 1))
sketch11.addConstraint(Sketcher.Constraint("Coincident", 6, 2, 7, 1))
sketch11.addConstraint(Sketcher.Constraint("Coincident", 7, 2, 8, 1))
sketch11.addConstraint(Sketcher.Constraint("Coincident", 8, 2, 9, 1))
sketch11.addConstraint(Sketcher.Constraint("Coincident", 9, 2, 10, 1))
sketch11.addConstraint(Sketcher.Constraint("Coincident", 10, 2, 11, 1))
sketch11.addConstraint(Sketcher.Constraint("Coincident", 11, 2, 12, 1))
sketch11.addConstraint(Sketcher.Constraint("Coincident", 12, 2, 13, 1))
sketch11.addConstraint(Sketcher.Constraint("Coincident", 13, 2, 0, 1))
sketch11.addConstraint(Sketcher.Constraint("Horizontal", 0))
sketch11.addConstraint(Sketcher.Constraint("Vertical", 1))
sketch11.addConstraint(Sketcher.Constraint("Horizontal", 3))
sketch11.addConstraint(Sketcher.Constraint("Vertical", 5))
sketch11.addConstraint(Sketcher.Constraint("Horizontal", 6))
sketch11.addConstraint(Sketcher.Constraint("Vertical", 7))
sketch11.addConstraint(Sketcher.Constraint("Horizontal", 8))
sketch11.addConstraint(Sketcher.Constraint("Vertical", 9))
sketch11.addConstraint(Sketcher.Constraint("Horizontal", 11))
sketch11.addConstraint(Sketcher.Constraint("Vertical", 13))
sketch11.addConstraint(Sketcher.Constraint("PointOnObject", 0, 2, -1))
sketch11.addConstraint(Sketcher.Constraint("PointOnObject", 5, 2, -1))
sketch11.addConstraint(Sketcher.Constraint("Perpendicular", 2, 4))
sketch11.addConstraint(Sketcher.Constraint("Parallel", 4, 10))
sketch11.addConstraint(Sketcher.Constraint("Perpendicular", 10, 12))
sketch11.addConstraint(Sketcher.Constraint("Horizontal", 1, 2, 4, 2))
sketch11.addConstraint(Sketcher.Constraint("Horizontal", 9, 2, 12, 2))
sketch11.addConstraint(Sketcher.Constraint("Equal", 2, 4))
sketch11.addConstraint(Sketcher.Constraint("DistanceX", 0, 2, 0, 1, Q("3 mm")))
sketch11.addConstraint(Sketcher.Constraint("DistanceY", 7, 2, 7, 1, Q("10 mm")))
sketch11.addConstraint(Sketcher.Constraint("DistanceX", 8, 2, 5, 2, Q("3 mm")))
sketch11.addConstraint(Sketcher.Constraint("DistanceY", 3, 2, 10, 2, Q("3 mm")))
sketch11.addConstraint(Sketcher.Constraint("DistanceX", 1, 2, 4, 2, Q("58.5 mm")))
sketch11.addConstraint(Sketcher.Constraint("DistanceY", 2, 2, -1, 1, Q("78.75 mm")))
sketch11.addConstraint(Sketcher.Constraint("DistanceX", 11, 2, -1, 1, Q("63.6371 mm")))
sketch11.addConstraint(Sketcher.Constraint("Distance", 10, Q("21.746212 mm")))
sketch11.addConstraint(Sketcher.Constraint("DistanceX", 3, 1, 3, 2, Q("24.231493 mm")))
sketch11.addConstraint(Sketcher.Constraint("DistanceX", 6, 2, 6, 1, Q("2.894878 mm")))
pad6 = body2.newObject("PartDesign::Pad", "Pad005")
pad6.Profile = sketch11
pad6.Length = 50
pad6.Reversed = True
body3 = doc.addObject("PartDesign::Body", "Body002")

# Sketch on an angled plane
sketch12 = body3.newObject("Sketcher::SketchObject", "Sketch011")
sketch12.Placement = App.Placement(App.Vector(1.167373, 179.854929, 0), App.Rotation(App.Vector(0.999978936, -0.0064905, 0), App.Vector(0, 0, -0.999999999), App.Vector(0.0064905, 0.999978936, 0), "ZXY"))
sketch12.addGeometry(Part.LineSegment(App.Vector(-26.408872, 0, 0), App.Vector(-79.013994, 0, 0)), False)
sketch12.addGeometry(Part.LineSegment(App.Vector(-79.013994, 0, 0), App.Vector(-79.013994, -10, 0)), False)
sketch12.addGeometry(Part.LineSegment(App.Vector(-79.013994, -10, 0), App.Vector(-78.108019, -35, 0)), False)
sketch12.addGeometry(Part.LineSegment(App.Vector(-78.108019, -35, 0), App.Vector(-27.314847, -35, 0)), False)
sketch12.addGeometry(Part.LineSegment(App.Vector(-27.314847, -35, 0), App.Vector(-26.408872, -10, 0)), False)
sketch12.addGeometry(Part.LineSegment(App.Vector(-26.408872, -10, 0), App.Vector(-26.408872, 0, 0)), False)
sketch12.addConstraint(Sketcher.Constraint("Coincident", 0, 2, 1, 1))
sketch12.addConstraint(Sketcher.Constraint("Coincident", 1, 2, 2, 1))
sketch12.addConstraint(Sketcher.Constraint("Coincident", 2, 2, 3, 1))
sketch12.addConstraint(Sketcher.Constraint("Coincident", 3, 2, 4, 1))
sketch12.addConstraint(Sketcher.Constraint("Coincident", 4, 2, 5, 1))
sketch12.addConstraint(Sketcher.Constraint("Coincident", 5, 2, 0, 1))
sketch12.addConstraint(Sketcher.Constraint("Horizontal", 0))
sketch12.addConstraint(Sketcher.Constraint("Vertical", 1))
sketch12.addConstraint(Sketcher.Constraint("Horizontal", 3))
sketch12.addConstraint(Sketcher.Constraint("Vertical", 5))
sketch12.addConstraint(Sketcher.Constraint("PointOnObject", 0, 2, -1))
sketch12.addConstraint(Sketcher.Constraint("Horizontal", 1, 2, 4, 2))
sketch12.addConstraint(Sketcher.Constraint("Equal", 2, 4))
sketch12.addConstraint(Sketcher.Constraint("DistanceY", 1, 2, 1, 1, Q("10 mm")))
sketch12.addConstraint(Sketcher.Constraint("DistanceY", 2, 2, -1, 1, Q("35 mm")))
sketch12.addConstraint(Sketcher.Constraint("Distance", 2, Q("25.01641 mm")))
sketch12.addConstraint(Sketcher.Constraint("DistanceX", 0, 2, 0, 1, Q("52.605122 mm")))
sketch12.addConstraint(Sketcher.Constraint("DistanceX", 2, 2, -1, 1, Q("78.108019 mm")))
pad7 = body3.newObject("PartDesign::Pad", "Pad006")
pad7.Profile = sketch12
pad7.Length = 1
pad7.Reversed = True
doc.recompute()

body4 = doc.addObject("PartDesign::Body", "Body003")
body4.BaseFeature = body3
boolean = body.newObject("PartDesign::Boolean", "Boolean")
boolean.Type = "Cut"
boolean.addObjects([body4])
doc.recompute()

# Sketch on an angled plane
sketch13 = body.newObject("Sketcher::SketchObject", "Sketch012")
sketch13.Placement = App.Placement(App.Vector(1.160883, 178.85495, 0), App.Rotation(App.Vector(0.999978936, -0.0064905, 0), App.Vector(0, 0, -0.999999999), App.Vector(0.0064905, 0.999978936, 0), "ZXY"))
sketch13.addGeometry(Part.Circle(App.Vector(-40, -27, 0), App.Vector(0, 0, 1), 10), False)
sketch13.addGeometry(Part.Circle(App.Vector(-66, -27, 0), App.Vector(0, 0, 1), 10), False)
sketch13.addConstraint(Sketcher.Constraint("Equal", 0, 1))
sketch13.addConstraint(Sketcher.Constraint("Horizontal", 0, 3, 1, 3))
sketch13.addConstraint(Sketcher.Constraint("Diameter", 0, Q("20 mm")))
sketch13.addConstraint(Sketcher.Constraint("DistanceX", 1, 3, 0, 3, Q("26 mm")))
sketch13.addConstraint(Sketcher.Constraint("DistanceY", 0, 3, -1, 1, Q("27.25 mm")))
sketch13.addConstraint(Sketcher.Constraint("DistanceX", 0, 3, -1, 1, Q("39.763994 mm")))
pocket4 = body.newObject("PartDesign::Pocket", "Pocket003")
pocket4.Profile = sketch13
pocket4.Length = 10
doc.recompute()

boolean2 = body2.newObject("PartDesign::Boolean", "Boolean001")
boolean2.Type = "Cut"
boolean2.addObjects([body3])
doc.recompute()

boolean3 = body.newObject("PartDesign::Boolean", "Boolean002")
boolean3.Type = "Fuse"
boolean3.addObjects([body2])

doc.recompute()
